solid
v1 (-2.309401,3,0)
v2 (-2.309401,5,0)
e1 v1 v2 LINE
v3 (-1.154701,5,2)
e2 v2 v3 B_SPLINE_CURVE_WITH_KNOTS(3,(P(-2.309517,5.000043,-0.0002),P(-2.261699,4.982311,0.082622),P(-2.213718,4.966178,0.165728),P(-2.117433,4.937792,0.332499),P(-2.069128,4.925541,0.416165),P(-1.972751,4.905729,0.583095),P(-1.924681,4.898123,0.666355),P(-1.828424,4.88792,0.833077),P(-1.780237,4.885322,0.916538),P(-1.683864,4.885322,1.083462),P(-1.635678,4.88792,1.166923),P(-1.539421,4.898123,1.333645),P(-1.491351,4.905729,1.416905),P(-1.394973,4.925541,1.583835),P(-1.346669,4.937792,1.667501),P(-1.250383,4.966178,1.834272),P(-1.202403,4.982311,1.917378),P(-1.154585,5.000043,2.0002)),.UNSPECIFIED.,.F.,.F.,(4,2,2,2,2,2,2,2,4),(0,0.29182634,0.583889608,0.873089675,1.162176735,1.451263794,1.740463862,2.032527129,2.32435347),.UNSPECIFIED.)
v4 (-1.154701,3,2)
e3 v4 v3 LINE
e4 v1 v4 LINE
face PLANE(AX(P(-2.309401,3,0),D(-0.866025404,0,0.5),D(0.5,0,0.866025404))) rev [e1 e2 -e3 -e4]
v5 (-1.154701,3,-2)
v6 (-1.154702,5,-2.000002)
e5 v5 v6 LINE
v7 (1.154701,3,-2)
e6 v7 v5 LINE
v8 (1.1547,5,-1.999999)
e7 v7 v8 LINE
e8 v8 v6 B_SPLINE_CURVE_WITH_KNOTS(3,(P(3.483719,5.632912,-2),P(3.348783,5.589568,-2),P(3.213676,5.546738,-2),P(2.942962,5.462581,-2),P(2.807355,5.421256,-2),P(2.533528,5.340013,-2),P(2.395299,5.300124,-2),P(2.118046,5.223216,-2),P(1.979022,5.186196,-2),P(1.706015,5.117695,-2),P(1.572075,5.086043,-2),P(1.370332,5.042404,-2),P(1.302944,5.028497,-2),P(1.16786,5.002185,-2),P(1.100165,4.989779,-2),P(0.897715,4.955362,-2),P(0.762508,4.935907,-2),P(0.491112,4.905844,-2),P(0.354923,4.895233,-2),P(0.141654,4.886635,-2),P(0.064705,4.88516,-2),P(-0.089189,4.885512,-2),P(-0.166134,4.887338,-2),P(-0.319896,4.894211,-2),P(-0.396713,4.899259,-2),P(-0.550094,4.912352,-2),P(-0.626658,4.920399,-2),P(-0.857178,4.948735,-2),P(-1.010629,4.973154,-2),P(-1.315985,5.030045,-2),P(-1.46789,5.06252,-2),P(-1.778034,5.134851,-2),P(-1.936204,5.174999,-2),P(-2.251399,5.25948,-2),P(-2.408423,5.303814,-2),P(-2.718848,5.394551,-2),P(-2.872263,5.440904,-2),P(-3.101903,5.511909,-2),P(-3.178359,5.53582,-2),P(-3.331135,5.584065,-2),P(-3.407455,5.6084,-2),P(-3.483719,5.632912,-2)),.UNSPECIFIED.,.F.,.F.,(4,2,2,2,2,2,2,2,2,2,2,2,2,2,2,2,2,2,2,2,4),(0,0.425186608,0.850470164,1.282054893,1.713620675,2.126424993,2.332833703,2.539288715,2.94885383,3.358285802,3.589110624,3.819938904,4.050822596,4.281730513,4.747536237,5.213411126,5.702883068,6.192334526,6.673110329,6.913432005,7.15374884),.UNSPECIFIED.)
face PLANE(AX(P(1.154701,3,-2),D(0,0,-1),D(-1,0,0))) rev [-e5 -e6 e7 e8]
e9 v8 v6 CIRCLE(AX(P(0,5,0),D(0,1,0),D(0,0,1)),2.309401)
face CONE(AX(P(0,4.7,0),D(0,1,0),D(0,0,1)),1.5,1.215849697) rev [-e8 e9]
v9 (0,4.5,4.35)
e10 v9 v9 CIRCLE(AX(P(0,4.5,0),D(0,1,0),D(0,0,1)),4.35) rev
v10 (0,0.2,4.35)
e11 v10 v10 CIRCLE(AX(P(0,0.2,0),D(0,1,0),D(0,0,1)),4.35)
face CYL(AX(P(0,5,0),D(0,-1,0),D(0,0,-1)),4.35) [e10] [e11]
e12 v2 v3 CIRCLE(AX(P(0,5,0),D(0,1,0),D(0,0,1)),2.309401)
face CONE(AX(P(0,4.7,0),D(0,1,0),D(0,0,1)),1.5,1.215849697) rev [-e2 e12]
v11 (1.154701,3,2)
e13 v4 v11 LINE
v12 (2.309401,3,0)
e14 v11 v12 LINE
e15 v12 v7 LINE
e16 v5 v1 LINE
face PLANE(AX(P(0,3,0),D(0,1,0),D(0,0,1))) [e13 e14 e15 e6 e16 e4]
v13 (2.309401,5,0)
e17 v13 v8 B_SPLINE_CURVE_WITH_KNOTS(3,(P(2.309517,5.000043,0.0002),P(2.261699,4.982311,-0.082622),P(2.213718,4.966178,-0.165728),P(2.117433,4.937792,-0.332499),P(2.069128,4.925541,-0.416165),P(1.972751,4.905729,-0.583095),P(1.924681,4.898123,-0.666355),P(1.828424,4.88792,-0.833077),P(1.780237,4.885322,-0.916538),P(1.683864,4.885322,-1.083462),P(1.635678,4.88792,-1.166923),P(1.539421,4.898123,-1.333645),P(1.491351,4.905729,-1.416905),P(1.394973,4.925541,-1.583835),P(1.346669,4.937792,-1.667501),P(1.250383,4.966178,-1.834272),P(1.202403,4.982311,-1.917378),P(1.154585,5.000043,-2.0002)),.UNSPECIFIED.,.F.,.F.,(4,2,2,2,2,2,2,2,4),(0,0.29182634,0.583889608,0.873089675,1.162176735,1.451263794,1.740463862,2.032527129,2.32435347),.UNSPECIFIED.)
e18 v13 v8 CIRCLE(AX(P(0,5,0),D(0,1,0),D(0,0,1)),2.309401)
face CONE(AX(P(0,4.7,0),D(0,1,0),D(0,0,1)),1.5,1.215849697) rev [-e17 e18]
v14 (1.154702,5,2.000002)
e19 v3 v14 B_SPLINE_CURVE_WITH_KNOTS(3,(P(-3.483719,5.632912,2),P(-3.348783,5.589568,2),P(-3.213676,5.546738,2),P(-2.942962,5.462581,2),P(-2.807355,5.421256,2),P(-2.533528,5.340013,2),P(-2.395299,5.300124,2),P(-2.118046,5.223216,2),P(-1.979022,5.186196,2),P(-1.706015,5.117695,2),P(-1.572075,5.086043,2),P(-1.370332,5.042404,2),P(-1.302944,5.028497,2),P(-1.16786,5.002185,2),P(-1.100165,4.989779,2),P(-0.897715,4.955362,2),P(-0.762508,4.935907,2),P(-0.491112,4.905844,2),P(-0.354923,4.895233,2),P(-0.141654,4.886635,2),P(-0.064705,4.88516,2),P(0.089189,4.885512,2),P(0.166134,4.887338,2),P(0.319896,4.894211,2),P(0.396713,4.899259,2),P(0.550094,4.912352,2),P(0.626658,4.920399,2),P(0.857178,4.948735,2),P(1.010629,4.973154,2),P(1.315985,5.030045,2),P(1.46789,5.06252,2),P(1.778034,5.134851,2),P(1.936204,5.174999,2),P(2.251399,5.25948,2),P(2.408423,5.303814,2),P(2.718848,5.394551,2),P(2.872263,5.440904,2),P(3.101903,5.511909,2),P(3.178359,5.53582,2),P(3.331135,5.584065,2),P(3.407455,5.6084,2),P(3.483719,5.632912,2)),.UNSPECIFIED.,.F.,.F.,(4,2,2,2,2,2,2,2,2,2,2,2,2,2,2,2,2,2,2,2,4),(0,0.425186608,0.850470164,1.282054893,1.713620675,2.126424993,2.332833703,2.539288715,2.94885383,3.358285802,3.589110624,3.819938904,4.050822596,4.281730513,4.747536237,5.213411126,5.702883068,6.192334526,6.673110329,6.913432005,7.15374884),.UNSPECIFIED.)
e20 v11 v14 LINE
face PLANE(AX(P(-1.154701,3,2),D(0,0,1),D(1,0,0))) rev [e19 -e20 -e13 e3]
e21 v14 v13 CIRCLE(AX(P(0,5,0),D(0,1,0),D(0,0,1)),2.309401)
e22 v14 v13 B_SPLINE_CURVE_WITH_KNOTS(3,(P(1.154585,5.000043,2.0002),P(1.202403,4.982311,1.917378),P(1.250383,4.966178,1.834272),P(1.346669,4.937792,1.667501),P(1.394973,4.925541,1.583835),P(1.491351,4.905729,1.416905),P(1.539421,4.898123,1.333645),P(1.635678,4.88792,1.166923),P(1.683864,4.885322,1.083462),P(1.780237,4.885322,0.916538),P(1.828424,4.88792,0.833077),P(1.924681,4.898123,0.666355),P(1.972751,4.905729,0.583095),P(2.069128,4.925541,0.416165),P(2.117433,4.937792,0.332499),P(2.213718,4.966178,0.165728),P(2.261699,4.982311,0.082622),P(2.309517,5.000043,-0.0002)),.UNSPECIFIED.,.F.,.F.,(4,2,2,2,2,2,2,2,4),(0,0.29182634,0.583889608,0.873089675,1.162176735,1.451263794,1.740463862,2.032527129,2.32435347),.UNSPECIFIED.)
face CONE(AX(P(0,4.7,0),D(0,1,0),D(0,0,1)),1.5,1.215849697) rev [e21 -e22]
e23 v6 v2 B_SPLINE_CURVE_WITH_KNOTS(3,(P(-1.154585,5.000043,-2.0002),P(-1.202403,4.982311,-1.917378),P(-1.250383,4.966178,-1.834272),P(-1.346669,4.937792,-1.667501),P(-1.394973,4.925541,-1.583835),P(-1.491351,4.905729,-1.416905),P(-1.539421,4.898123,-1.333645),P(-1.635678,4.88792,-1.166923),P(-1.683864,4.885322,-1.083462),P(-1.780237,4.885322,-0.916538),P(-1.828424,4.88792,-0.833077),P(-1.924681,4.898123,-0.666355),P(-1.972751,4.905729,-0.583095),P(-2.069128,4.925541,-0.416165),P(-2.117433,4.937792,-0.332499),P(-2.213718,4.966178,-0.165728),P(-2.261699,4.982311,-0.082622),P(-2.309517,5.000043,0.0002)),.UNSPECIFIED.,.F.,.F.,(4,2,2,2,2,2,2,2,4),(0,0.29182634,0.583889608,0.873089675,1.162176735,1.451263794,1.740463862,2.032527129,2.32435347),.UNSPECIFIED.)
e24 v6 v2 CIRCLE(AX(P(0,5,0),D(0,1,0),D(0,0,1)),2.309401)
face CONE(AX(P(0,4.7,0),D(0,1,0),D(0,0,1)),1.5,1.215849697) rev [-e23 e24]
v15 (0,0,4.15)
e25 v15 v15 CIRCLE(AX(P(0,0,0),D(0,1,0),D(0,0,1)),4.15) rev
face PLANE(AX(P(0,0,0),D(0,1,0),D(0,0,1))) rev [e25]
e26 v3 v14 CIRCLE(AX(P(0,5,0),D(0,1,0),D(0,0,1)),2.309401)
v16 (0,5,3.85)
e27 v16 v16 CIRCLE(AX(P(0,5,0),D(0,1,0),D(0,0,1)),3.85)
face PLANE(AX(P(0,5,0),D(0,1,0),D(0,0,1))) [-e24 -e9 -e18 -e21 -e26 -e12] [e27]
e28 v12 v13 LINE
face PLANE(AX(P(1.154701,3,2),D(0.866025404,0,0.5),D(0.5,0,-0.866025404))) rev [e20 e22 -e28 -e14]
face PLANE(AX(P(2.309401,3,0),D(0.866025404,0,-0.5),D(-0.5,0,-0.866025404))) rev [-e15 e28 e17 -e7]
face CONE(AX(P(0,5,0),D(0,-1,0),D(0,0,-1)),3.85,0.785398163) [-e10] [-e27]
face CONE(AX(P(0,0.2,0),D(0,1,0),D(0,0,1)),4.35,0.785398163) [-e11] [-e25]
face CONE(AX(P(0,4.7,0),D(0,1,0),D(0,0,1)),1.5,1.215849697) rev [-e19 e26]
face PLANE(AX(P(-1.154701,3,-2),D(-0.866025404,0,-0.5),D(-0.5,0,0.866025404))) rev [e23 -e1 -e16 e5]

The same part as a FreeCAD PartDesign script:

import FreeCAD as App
import Part
import Sketcher
Q = App.Units.Quantity


def edges_at(feature, points):
    """Names of the edges that pass closest to the given points."""
    edges = feature.Shape.Edges
    near = lambda p: min(range(len(edges)), key=lambda i: edges[i].distToShape(Part.Vertex(*p))[0])
    return sorted({f"Edge{near(p) + 1}" for p in points})

doc = App.newDocument("Part")
body = doc.addObject("PartDesign::Body", "Body")

sketch1 = body.newObject("Sketcher::SketchObject", "Sketch")
sketch1.AttachmentSupport = (doc.getObject("XZ_Plane"), [""])
sketch1.MapMode = "FlatFace"
sketch1.addGeometry(Part.Circle(App.Vector(0, 0, 0), App.Vector(0, 0, 1), 4.35), False)
sketch1.addConstraint([
    Sketcher.Constraint("Coincident", 0, 3, -1, 1),
    Sketcher.Constraint("Diameter", 0, 8.7),
])
pad1 = body.newObject("PartDesign::Pad", "Pad")
pad1.Profile = sketch1
pad1.Length = 5
pad1.Reversed = True

sketch2 = body.newObject("Sketcher::SketchObject", "Sketch001")
sketch2.AttachmentSupport = (doc.getObject("XZ_Plane"), [""])
sketch2.MapMode = "FlatFace"
sketch2.AttachmentOffset = App.Placement(App.Vector(0, 0, -5), App.Rotation())
sketch2.addGeometry([
    Part.LineSegment(App.Vector(2.309401, 0, 0), App.Vector(1.154701, -2, 0)),
    Part.LineSegment(App.Vector(1.154701, -2, 0), App.Vector(-1.154701, -2, 0)),
    Part.LineSegment(App.Vector(-1.154701, -2, 0), App.Vector(-2.309401, 0, 0)),
    Part.LineSegment(App.Vector(-2.309401, 0, 0), App.Vector(-1.154701, 2, 0)),
    Part.LineSegment(App.Vector(-1.154701, 2, 0), App.Vector(1.154701, 2, 0)),
    Part.LineSegment(App.Vector(1.154701, 2, 0), App.Vector(2.309401, 0, 0)),
], False)
sketch2.addConstraint([
    Sketcher.Constraint("Coincident", 0, 2, 1, 1),
    Sketcher.Constraint("Coincident", 1, 2, 2, 1),
    Sketcher.Constraint("Coincident", 2, 2, 3, 1),
    Sketcher.Constraint("Coincident", 3, 2, 4, 1),
    Sketcher.Constraint("Coincident", 4, 2, 5, 1),
    Sketcher.Constraint("Coincident", 5, 2, 0, 1),
    Sketcher.Constraint("Horizontal", 1),
    Sketcher.Constraint("Horizontal", 4),
    Sketcher.Constraint("Symmetric", 0, 2, 3, 2, -1, 1),
    Sketcher.Constraint("Symmetric", 2, 2, 5, 2, -1, 1),
    Sketcher.Constraint("PointOnObject", 2, 2, -1),
    Sketcher.Constraint("Parallel", 2, 5),
    Sketcher.Constraint("Vertical", 1, 2, 3, 2),
    Sketcher.Constraint("Angle", 0, Q("-120 deg")),
    Sketcher.Constraint("DistanceY", 0, 2, -1, 1, 2.0),
    Sketcher.Constraint("DistanceX", 1, 2, 1, 1, 2.309401),
])
pocket1 = body.newObject("PartDesign::Pocket", "Pocket")
pocket1.Profile = sketch2
pocket1.Length = 2
pocket1.Reversed = True

sketch3 = body.newObject("Sketcher::SketchObject", "Sketch002")
sketch3.AttachmentSupport = (doc.getObject("XZ_Plane"), [""])
sketch3.MapMode = "FlatFace"
sketch3.AttachmentOffset = App.Placement(App.Vector(0, 0, -5), App.Rotation())
sketch3.addGeometry(Part.Circle(App.Vector(0, 0, 0), App.Vector(0, 0, 1), 2.309401), False)
sketch3.addConstraint([
    Sketcher.Constraint("Coincident", 0, 3, -1, 1),
    Sketcher.Constraint("Diameter", 0, 4.618802),
])

sketch4 = body.newObject("Sketcher::SketchObject", "Sketch003")
sketch4.AttachmentSupport = (doc.getObject("XZ_Plane"), [""])
sketch4.MapMode = "FlatFace"
sketch4.AttachmentOffset = App.Placement(App.Vector(0, 0, -4.7), App.Rotation())
sketch4.addGeometry(Part.Circle(App.Vector(0, 0, 0), App.Vector(0, 0, 1), 1.5), False)
sketch4.addConstraint([
    Sketcher.Constraint("Coincident", 0, 3, -1, 1),
    Sketcher.Constraint("Diameter", 0, 3.0),
])

subtractiveloft = body.newObject("PartDesign::SubtractiveLoft", "SubtractiveLoft")
subtractiveloft.Profile = sketch3
subtractiveloft.Sections = [sketch4]
doc.recompute()

chamfer = body.newObject("PartDesign::Chamfer", "Chamfer")
chamfer.Base = (subtractiveloft, edges_at(subtractiveloft, [(0, 5, -4.35)]))
chamfer.Size = 0.5
doc.recompute()

chamfer2 = body.newObject("PartDesign::Chamfer", "Chamfer001")
chamfer2.Base = (chamfer, edges_at(chamfer, [(0, 0, -4.35)]))
chamfer2.Size = 0.2

doc.recompute()
